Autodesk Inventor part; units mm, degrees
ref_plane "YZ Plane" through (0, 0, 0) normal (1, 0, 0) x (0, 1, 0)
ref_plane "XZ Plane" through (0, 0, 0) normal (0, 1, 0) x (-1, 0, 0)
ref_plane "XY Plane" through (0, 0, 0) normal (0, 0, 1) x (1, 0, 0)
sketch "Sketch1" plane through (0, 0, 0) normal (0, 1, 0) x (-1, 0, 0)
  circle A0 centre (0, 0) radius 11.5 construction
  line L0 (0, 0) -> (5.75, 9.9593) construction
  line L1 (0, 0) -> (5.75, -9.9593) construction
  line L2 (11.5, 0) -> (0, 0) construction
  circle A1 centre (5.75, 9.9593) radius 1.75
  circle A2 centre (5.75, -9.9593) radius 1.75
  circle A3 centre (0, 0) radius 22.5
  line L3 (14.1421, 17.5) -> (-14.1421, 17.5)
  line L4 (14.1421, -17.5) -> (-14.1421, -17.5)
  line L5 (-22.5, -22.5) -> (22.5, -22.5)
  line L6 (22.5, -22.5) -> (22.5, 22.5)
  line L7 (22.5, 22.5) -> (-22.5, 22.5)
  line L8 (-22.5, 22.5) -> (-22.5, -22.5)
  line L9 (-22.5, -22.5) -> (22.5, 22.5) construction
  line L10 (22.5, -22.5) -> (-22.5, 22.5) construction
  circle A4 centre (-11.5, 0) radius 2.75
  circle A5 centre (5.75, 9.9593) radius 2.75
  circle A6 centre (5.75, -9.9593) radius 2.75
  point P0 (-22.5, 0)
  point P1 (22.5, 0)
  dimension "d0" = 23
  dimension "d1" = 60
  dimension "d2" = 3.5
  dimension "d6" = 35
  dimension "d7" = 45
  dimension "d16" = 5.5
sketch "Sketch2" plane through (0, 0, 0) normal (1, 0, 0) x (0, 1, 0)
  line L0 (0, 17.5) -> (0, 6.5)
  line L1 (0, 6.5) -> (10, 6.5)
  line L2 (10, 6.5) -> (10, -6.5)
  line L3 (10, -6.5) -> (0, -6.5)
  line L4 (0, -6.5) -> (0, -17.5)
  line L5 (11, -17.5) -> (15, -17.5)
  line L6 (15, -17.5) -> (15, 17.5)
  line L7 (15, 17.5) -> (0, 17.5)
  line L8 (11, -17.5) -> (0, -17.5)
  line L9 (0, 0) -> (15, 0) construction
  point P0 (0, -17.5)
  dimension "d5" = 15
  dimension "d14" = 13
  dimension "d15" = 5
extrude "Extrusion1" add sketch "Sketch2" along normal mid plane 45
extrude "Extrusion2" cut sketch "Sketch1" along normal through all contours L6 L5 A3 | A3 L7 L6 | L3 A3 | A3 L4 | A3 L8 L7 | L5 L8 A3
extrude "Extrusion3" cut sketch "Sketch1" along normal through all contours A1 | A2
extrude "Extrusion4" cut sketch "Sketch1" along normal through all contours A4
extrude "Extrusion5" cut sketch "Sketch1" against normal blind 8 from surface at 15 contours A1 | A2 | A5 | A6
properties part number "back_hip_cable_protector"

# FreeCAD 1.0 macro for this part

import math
import FreeCAD as App
import Part
import Sketcher


def add_polygon(sketch, points):
    """Adds a closed chain of lines whose ends are joined by coincident constraints."""
    first, n = sketch.GeometryCount, len(points)
    for a, b in zip(points, points[1:] + points[:1]):
        sketch.addGeometry(Part.LineSegment(App.Vector(*a, 0), App.Vector(*b, 0)), False)
    for i in range(n):
        sketch.addConstraint(Sketcher.Constraint("Coincident", first + i, 2, first + (i + 1) % n, 1))

doc = App.newDocument("Part")
body = doc.addObject("PartDesign::Body", "Body")

# Sketch on YZ plane
sketch1 = body.newObject("Sketcher::SketchObject", "Sketch")
sketch1.AttachmentSupport = (doc.getObject("YZ_Plane"), [""])
sketch1.MapMode = "FlatFace"
add_polygon(sketch1, [(15, 18), (0, 18), (0, 6), (10, 6), (10, -6), (0, -6), (0, -18), (15, -18)])  # lines 0-7
sketch1.addConstraint([
    Sketcher.Constraint("Horizontal", 0),
    Sketcher.Constraint("Vertical", 1),
    Sketcher.Constraint("Horizontal", 2),
    Sketcher.Constraint("Vertical", 3),
    Sketcher.Constraint("Horizontal", 4),
    Sketcher.Constraint("Vertical", 5),
    Sketcher.Constraint("Horizontal", 6),
    Sketcher.Constraint("Vertical", 7),
    Sketcher.Constraint("Symmetric", 1, 2, 4, 2, -1, 1),
    Sketcher.Constraint("Symmetric", 0, 2, 5, 2, -1),
    Sketcher.Constraint("DistanceX", 0, 2, 0, 1, 15.0),
    Sketcher.Constraint("DistanceY", 3, 2, 3, 1, 13.0),
    Sketcher.Constraint("DistanceX", 3, 2, 6, 2, 5.0),
    Sketcher.Constraint("DistanceY", 1, 2, 1, 1, 11.0),
])
pad1 = body.newObject("PartDesign::Pad", "Pad")
pad1.Profile = sketch1
pad1.Length = 45
pad1.Midplane = True

# Sketch on XZ plane
sketch2 = body.newObject("Sketcher::SketchObject", "Sketch001")
sketch2.AttachmentSupport = (doc.getObject("XZ_Plane"), [""])
sketch2.MapMode = "FlatFace"
sketch2.addGeometry([
    Part.LineSegment(App.Vector(-22, -22, 0), App.Vector(-22, 0, 0)),  # 0
    Part.ArcOfCircle(Part.Circle(App.Vector(0, 0, 0), App.Vector(0, 0, 1), 22), math.radians(180), math.radians(231)),  # 1
    Part.LineSegment(App.Vector(-14, -18, 0), App.Vector(14, -18, 0)),  # 2
    Part.ArcOfCircle(Part.Circle(App.Vector(0, 0, 0), App.Vector(0, 0, 1), 22), math.radians(-51), math.radians(0)),  # 3
    Part.LineSegment(App.Vector(22, 0, 0), App.Vector(22, -22, 0)),  # 4
    Part.LineSegment(App.Vector(22, -22, 0), App.Vector(-22, -22, 0)),  # 5
    Part.ArcOfCircle(Part.Circle(App.Vector(0, 0, 0), App.Vector(0, 0, 1), 22), math.radians(129), math.radians(180)),  # 6
    Part.LineSegment(App.Vector(-22, 0, 0), App.Vector(-22, 22, 0)),  # 7
    Part.LineSegment(App.Vector(-22, 22, 0), App.Vector(22, 22, 0)),  # 8
    Part.LineSegment(App.Vector(22, 22, 0), App.Vector(22, 0, 0)),  # 9
    Part.ArcOfCircle(Part.Circle(App.Vector(0, 0, 0), App.Vector(0, 0, 1), 22), math.radians(0), math.radians(51)),  # 10
    Part.LineSegment(App.Vector(14, 18, 0), App.Vector(-14, 18, 0)),  # 11
], False)
sketch2.addConstraint([
    Sketcher.Constraint("Tangent", 0, 2, 1, 1),
    Sketcher.Constraint("Coincident", 1, 2, 2, 1),
    Sketcher.Constraint("Coincident", 2, 2, 3, 1),
    Sketcher.Constraint("Tangent", 3, 2, 4, 1),
    Sketcher.Constraint("Coincident", 4, 2, 5, 1),
    Sketcher.Constraint("Coincident", 5, 2, 0, 1),
    Sketcher.Constraint("Tangent", 6, 2, 7, 1),
    Sketcher.Constraint("Coincident", 7, 2, 8, 1),
    Sketcher.Constraint("Coincident", 8, 2, 9, 1),
    Sketcher.Constraint("Tangent", 9, 2, 10, 1),
    Sketcher.Constraint("Coincident", 10, 2, 11, 1),
    Sketcher.Constraint("Coincident", 11, 2, 6, 1),
    Sketcher.Constraint("Vertical", 0),
    Sketcher.Constraint("Horizontal", 2),
    Sketcher.Constraint("Vertical", 4),
    Sketcher.Constraint("Horizontal", 5),
    Sketcher.Constraint("Vertical", 7),
    Sketcher.Constraint("Horizontal", 8),
    Sketcher.Constraint("Vertical", 9),
    Sketcher.Constraint("Horizontal", 11),
    Sketcher.Constraint("Coincident", 1, 3, -1, 1),
    Sketcher.Constraint("Coincident", 3, 3, -1, 1),
    Sketcher.Constraint("Coincident", 6, 3, -1, 1),
    Sketcher.Constraint("Coincident", 10, 3, -1, 1),
    Sketcher.Constraint("Equal", 1, 3),
    Sketcher.Constraint("Equal", 3, 6),
    Sketcher.Constraint("Equal", 6, 10),
    Sketcher.Constraint("Vertical", 2, 2, 10, 2),
    Sketcher.Constraint("Equal", 4, 7),
    Sketcher.Constraint("Radius", 1, 22.5),
    Sketcher.Constraint("DistanceY", 0, 1, 0, 2, 22.5),
    Sketcher.Constraint("DistanceY", 4, 2, 2, 2, 5.0),
])
pocket1 = body.newObject("PartDesign::Pocket", "Pocket")
pocket1.Profile = sketch2
pocket1.Type = "ThroughAll"

# Sketch on XZ plane
sketch3 = body.newObject("Sketcher::SketchObject", "Sketch002")
sketch3.AttachmentSupport = (doc.getObject("XZ_Plane"), [""])
sketch3.MapMode = "FlatFace"
sketch3.addGeometry([
    Part.Circle(App.Vector(-5.8, 10, 0), App.Vector(0, 0, 1), 1.8),
    Part.Circle(App.Vector(-5.8, -10, 0), App.Vector(0, 0, 1), 1.8),
], False)
sketch3.addConstraint([
    Sketcher.Constraint("Equal", 0, 1),
    Sketcher.Constraint("Symmetric", 0, 3, 1, 3, -1),
    Sketcher.Constraint("Diameter", 0, 3.5),
    Sketcher.Constraint("DistanceX", 0, 3, -1, 1, 5.75),
    Sketcher.Constraint("DistanceY", -1, 1, 0, 3, 9.9593),
])
pocket2 = body.newObject("PartDesign::Pocket", "Pocket001")
pocket2.Profile = sketch3
pocket2.Type = "ThroughAll"

# Sketch on XZ plane
sketch4 = body.newObject("Sketcher::SketchObject", "Sketch003")
sketch4.AttachmentSupport = (doc.getObject("XZ_Plane"), [""])
sketch4.MapMode = "FlatFace"
sketch4.addGeometry(Part.Circle(App.Vector(11.5, 0, 0), App.Vector(0, 0, 1), 2.8), False)
sketch4.addConstraint([
    Sketcher.Constraint("PointOnObject", 0, 3, -1),
    Sketcher.Constraint("Diameter", 0, 5.5),
    Sketcher.Constraint("DistanceX", -1, 1, 0, 3, 11.5),
])
pocket3 = body.newObject("PartDesign::Pocket", "Pocket002")
pocket3.Profile = sketch4
pocket3.Type = "ThroughAll"

# Sketch on XZ plane
sketch5 = body.newObject("Sketcher::SketchObject", "Sketch004")
sketch5.AttachmentSupport = (doc.getObject("XZ_Plane"), [""])
sketch5.MapMode = "FlatFace"
sketch5.AttachmentOffset = App.Placement(App.Vector(0, 0, -15), App.Rotation())
sketch5.addGeometry([
    Part.Circle(App.Vector(-5.8, 10, 0), App.Vector(0, 0, 1), 2.8),
    Part.Circle(App.Vector(-5.8, -10, 0), App.Vector(0, 0, 1), 2.8),
], False)
sketch5.addConstraint([
    Sketcher.Constraint("Equal", 0, 1),
    Sketcher.Constraint("Symmetric", 0, 3, 1, 3, -1),
    Sketcher.Constraint("Diameter", 0, 5.5),
    Sketcher.Constraint("DistanceX", 0, 3, -1, 1, 5.75),
    Sketcher.Constraint("DistanceY", -1, 1, 0, 3, 9.9593),
])
pocket4 = body.newObject("PartDesign::Pocket", "Pocket003")
pocket4.Profile = sketch5
pocket4.Length = 8
pocket4.Reversed = True

doc.recompute()
